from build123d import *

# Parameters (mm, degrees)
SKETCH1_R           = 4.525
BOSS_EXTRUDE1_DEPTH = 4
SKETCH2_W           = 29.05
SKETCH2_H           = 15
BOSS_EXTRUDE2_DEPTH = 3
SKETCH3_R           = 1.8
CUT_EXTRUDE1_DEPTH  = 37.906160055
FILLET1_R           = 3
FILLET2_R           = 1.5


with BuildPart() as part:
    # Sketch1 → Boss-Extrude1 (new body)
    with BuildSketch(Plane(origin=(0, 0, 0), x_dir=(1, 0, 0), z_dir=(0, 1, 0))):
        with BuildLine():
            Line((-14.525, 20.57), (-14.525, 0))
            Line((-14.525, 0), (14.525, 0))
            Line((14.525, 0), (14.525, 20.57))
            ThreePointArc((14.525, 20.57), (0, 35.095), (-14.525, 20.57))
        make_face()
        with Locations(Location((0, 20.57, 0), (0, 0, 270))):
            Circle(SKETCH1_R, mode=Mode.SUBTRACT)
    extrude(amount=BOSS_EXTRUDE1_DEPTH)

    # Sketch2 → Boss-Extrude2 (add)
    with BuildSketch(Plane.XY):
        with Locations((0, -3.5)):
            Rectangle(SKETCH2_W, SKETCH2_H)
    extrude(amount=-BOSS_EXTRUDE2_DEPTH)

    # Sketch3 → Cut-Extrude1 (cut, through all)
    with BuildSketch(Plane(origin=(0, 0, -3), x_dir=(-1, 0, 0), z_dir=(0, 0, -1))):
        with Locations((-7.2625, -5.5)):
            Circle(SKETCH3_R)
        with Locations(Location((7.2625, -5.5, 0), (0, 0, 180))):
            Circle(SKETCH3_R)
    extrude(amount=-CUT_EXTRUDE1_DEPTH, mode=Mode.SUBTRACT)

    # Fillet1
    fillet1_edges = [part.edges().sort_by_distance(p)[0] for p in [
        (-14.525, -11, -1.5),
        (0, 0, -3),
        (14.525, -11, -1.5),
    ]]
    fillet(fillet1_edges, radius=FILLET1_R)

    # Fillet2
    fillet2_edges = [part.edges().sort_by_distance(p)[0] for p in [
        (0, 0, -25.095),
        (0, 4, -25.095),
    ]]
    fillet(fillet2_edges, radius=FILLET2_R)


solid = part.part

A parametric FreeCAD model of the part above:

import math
import FreeCAD as App
import Part
import Sketcher


def edges_at(feature, points):
    """Names of the edges that pass closest to the given points."""
    edges = feature.Shape.Edges
    near = lambda p: min(range(len(edges)), key=lambda i: edges[i].distToShape(Part.Vertex(*p))[0])
    return sorted({f"Edge{near(p) + 1}" for p in points})

doc = App.newDocument("Part")
params = doc.addObject("Spreadsheet::Sheet", "Params")
for row, (alias, value) in enumerate([
    ("sketch1_diameter", "9.05 mm"),
    ("sketch1_height", "20.57 mm"),
    ("pad1_length", "4 mm"),
    ("sketch2_height", "15 mm"),
    ("sketch2_width", "29.05 mm"),
    ("pad2_length", "3 mm"),
    ("sketch3_diameter", "3.6 mm"),
    ("fillet_radius", "3 mm"),
    ("fillet2_radius", "1.5 mm"),
], start=1):
    params.set(f"A{row}", alias)
    params.set(f"B{row}", "=" + value)
    params.setAlias(f"B{row}", alias)

body = doc.addObject("PartDesign::Body", "Body")

# Sketch on XZ plane
sketch1 = body.newObject("Sketcher::SketchObject", "Sketch")
sketch1.AttachmentSupport = (doc.getObject("XZ_Plane"), [""])
sketch1.MapMode = "FlatFace"
sketch1.addGeometry(Part.LineSegment(App.Vector(-14.525, -20.57, 0), App.Vector(-14.525, 0, 0)), False)
sketch1.addGeometry(Part.LineSegment(App.Vector(-14.525, 0, 0), App.Vector(14.525, 0, 0)), False)
sketch1.addGeometry(Part.LineSegment(App.Vector(14.525, 0, 0), App.Vector(14.525, -20.57, 0)), False)
sketch1.addGeometry(Part.ArcOfCircle(Part.Circle(App.Vector(0, -20.57, 0), App.Vector(0, 0, 1), 14.525), math.radians(180), math.radians(360)), False)
sketch1.addGeometry(Part.Circle(App.Vector(0, -20.57, 0), App.Vector(0, 0, 1), 4.525), False)
sketch1.addConstraint(Sketcher.Constraint("Coincident", 0, 2, 1, 1))
sketch1.addConstraint(Sketcher.Constraint("Coincident", 1, 2, 2, 1))
sketch1.addConstraint(Sketcher.Constraint("Tangent", 2, 2, 3, 2))
sketch1.addConstraint(Sketcher.Constraint("Tangent", 3, 1, 0, 1))
sketch1.addConstraint(Sketcher.Constraint("Vertical", 0))
sketch1.addConstraint(Sketcher.Constraint("Horizontal", 1))
sketch1.addConstraint(Sketcher.Constraint("Vertical", 2))
sketch1.addConstraint(Sketcher.Constraint("Coincident", 4, 3, 3, 3))
sketch1.addConstraint(Sketcher.Constraint("Symmetric", 0, 2, 1, 2, -1, 1))
sketch1.addConstraint(Sketcher.Constraint("Diameter", 4, 9.05))
sketch1.addConstraint(Sketcher.Constraint("Radius", 3, 14.525))
sketch1.addConstraint(Sketcher.Constraint("DistanceY", 0, 1, 0, 2, 20.57))
sketch1.setExpression("Constraints[9]", "Params.sketch1_diameter")
sketch1.setExpression("Constraints[11]", "Params.sketch1_height")
pad1 = body.newObject("PartDesign::Pad", "Pad")
pad1.Profile = sketch1
pad1.setExpression("Length", "Params.pad1_length")
pad1.Reversed = True

# Sketch on XY plane
sketch2 = body.newObject("Sketcher::SketchObject", "Sketch001")
sketch2.AttachmentSupport = (doc.getObject("XY_Plane"), [""])
sketch2.MapMode = "FlatFace"
sketch2.addGeometry(Part.LineSegment(App.Vector(-14.525, 4, 0), App.Vector(-14.525, -11, 0)), False)
sketch2.addGeometry(Part.LineSegment(App.Vector(-14.525, -11, 0), App.Vector(14.525, -11, 0)), False)
sketch2.addGeometry(Part.LineSegment(App.Vector(14.525, -11, 0), App.Vector(14.525, 4, 0)), False)
sketch2.addGeometry(Part.LineSegment(App.Vector(14.525, 4, 0), App.Vector(-14.525, 4, 0)), False)
sketch2.addConstraint(Sketcher.Constraint("Coincident", 0, 2, 1, 1))
sketch2.addConstraint(Sketcher.Constraint("Coincident", 1, 2, 2, 1))
sketch2.addConstraint(Sketcher.Constraint("Coincident", 2, 2, 3, 1))
sketch2.addConstraint(Sketcher.Constraint("Coincident", 3, 2, 0, 1))
sketch2.addConstraint(Sketcher.Constraint("Vertical", 0))
sketch2.addConstraint(Sketcher.Constraint("Horizontal", 1))
sketch2.addConstraint(Sketcher.Constraint("Vertical", 2))
sketch2.addConstraint(Sketcher.Constraint("Horizontal", 3))
sketch2.addConstraint(Sketcher.Constraint("DistanceY", 0, 2, 0, 1, 15.0))
sketch2.addConstraint(Sketcher.Constraint("DistanceY", 0, 2, -1, 1, 11.0))
sketch2.addConstraint(Sketcher.Constraint("DistanceX", 1, 1, 1, 2, 29.05))
sketch2.addConstraint(Sketcher.Constraint("DistanceX", 0, 2, -1, 1, 14.525))
sketch2.setExpression("Constraints[8]", "Params.sketch2_height")
sketch2.setExpression("Constraints[10]", "Params.sketch2_width")
pad2 = body.newObject("PartDesign::Pad", "Pad001")
pad2.Profile = sketch2
pad2.setExpression("Length", "Params.pad2_length")
pad2.Reversed = True

# Sketch on XY plane
sketch3 = body.newObject("Sketcher::SketchObject", "Sketch002")
sketch3.AttachmentSupport = (doc.getObject("XY_Plane"), [""])
sketch3.MapMode = "FlatFace"
sketch3.AttachmentOffset = App.Placement(App.Vector(0, 0, -3), App.Rotation())
sketch3.addGeometry(Part.Circle(App.Vector(7.2625, -5.5, 0), App.Vector(0, 0, 1), 1.8), False)
sketch3.addGeometry(Part.Circle(App.Vector(-7.2625, -5.5, 0), App.Vector(0, 0, 1), 1.8), False)
sketch3.addConstraint(Sketcher.Constraint("Equal", 0, 1))
sketch3.addConstraint(Sketcher.Constraint("Symmetric", 0, 3, 1, 3, -2))
sketch3.addConstraint(Sketcher.Constraint("Diameter", 0, 3.6))
sketch3.addConstraint(Sketcher.Constraint("DistanceY", 0, 3, -1, 1, 5.5))
sketch3.addConstraint(Sketcher.Constraint("DistanceX", 1, 3, 0, 3, 14.525))
sketch3.setExpression("Constraints[2]", "Params.sketch3_diameter")
pocket1 = body.newObject("PartDesign::Pocket", "Pocket")
pocket1.Profile = sketch3
pocket1.Type = "ThroughAll"
pocket1.Reversed = True
doc.recompute()

fillet = body.newObject("PartDesign::Fillet", "Fillet")
fillet.Base = (pocket1, edges_at(pocket1, [(-14.525, -11, -1.5), (0, 0, -3), (14.525, -11, -1.5)]))
fillet.setExpression("Radius", "Params.fillet_radius")
doc.recompute()

fillet2 = body.newObject("PartDesign::Fillet", "Fillet001")
fillet2.Base = (fillet, edges_at(fillet, [(0, 0, -25.095), (0, 4, -25.095)]))
fillet2.setExpression("Radius", "Params.fillet2_radius")

doc.recompute()
